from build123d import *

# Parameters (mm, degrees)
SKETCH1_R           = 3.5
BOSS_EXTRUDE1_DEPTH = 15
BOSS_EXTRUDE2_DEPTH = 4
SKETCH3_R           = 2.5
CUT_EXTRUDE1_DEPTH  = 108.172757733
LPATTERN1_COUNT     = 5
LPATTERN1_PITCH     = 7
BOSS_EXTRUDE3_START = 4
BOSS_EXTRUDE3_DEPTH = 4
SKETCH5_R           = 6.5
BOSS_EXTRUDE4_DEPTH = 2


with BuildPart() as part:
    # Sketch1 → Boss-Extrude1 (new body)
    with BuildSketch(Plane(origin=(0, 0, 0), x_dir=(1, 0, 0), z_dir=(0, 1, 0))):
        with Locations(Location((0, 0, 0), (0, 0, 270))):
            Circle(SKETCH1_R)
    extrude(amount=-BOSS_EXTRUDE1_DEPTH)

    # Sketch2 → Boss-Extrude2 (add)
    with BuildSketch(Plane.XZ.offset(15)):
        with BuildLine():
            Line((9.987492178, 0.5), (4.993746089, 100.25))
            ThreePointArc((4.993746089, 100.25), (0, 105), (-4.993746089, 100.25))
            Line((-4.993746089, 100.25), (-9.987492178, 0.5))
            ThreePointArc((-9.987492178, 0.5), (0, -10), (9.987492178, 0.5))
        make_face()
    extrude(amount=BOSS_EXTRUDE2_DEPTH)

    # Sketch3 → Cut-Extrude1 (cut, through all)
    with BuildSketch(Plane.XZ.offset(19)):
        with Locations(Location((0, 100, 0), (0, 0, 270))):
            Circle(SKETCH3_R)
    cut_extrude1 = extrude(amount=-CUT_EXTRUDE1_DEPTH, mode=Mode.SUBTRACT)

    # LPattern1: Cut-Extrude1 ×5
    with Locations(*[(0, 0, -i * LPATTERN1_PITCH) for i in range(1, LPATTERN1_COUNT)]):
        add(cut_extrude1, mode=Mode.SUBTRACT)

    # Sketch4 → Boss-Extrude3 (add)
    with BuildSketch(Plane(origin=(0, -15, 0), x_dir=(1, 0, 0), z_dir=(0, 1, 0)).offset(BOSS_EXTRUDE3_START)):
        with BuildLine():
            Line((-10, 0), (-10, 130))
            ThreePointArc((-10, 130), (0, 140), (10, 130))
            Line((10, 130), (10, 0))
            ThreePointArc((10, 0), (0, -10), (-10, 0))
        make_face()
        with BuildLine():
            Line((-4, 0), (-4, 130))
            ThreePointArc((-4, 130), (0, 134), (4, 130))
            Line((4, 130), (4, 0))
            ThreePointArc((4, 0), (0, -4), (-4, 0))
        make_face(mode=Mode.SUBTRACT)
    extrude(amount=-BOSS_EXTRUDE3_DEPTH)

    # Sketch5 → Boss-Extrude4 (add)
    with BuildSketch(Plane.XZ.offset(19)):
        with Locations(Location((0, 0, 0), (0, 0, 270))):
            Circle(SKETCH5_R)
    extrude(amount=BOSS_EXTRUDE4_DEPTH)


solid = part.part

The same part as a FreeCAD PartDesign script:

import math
import FreeCAD as App
import Part
import Sketcher

V = App.Vector

doc = App.newDocument("Part")
body = doc.addObject("PartDesign::Body", "Body")

# Sketch on XZ plane
sketch1 = body.newObject("Sketcher::SketchObject", "Sketch")
sketch1.AttachmentSupport = (doc.getObject("XZ_Plane"), [""])
sketch1.MapMode = "FlatFace"
sketch1.addGeometry(Part.Circle(V(0, 0, 0), V(0, 0, 1), 3.5), False)
sketch1.addConstraint([
    Sketcher.Constraint("Coincident", 0, 3, -1, 1),
    Sketcher.Constraint("Diameter", 0, 7.0),
])
pad1 = body.newObject("PartDesign::Pad", "Pad")
pad1.Profile = sketch1
pad1.Length = 15

# Sketch on XZ plane
sketch2 = body.newObject("Sketcher::SketchObject", "Sketch001")
sketch2.AttachmentSupport = (doc.getObject("XZ_Plane"), [""])
sketch2.MapMode = "FlatFace"
sketch2.AttachmentOffset = App.Placement(V(0, 0, 15), App.Rotation())
sketch2.addGeometry([
    Part.LineSegment(V(10, 0, 0), V(5, 100, 0)),
    Part.ArcOfCircle(Part.Circle(V(0, 100, 0), V(0, 0, 1), 5), math.radians(3), math.radians(177)),
    Part.LineSegment(V(-5, 100, 0), V(-10, 0, 0)),
    Part.ArcOfCircle(Part.Circle(V(0, 0, 0), V(0, 0, 1), 10), math.radians(177), math.radians(363)),
], False)
sketch2.addConstraint([
    Sketcher.Constraint("Tangent", 0, 2, 1, 1),
    Sketcher.Constraint("Tangent", 1, 2, 2, 1),
    Sketcher.Constraint("Tangent", 2, 2, 3, 1),
    Sketcher.Constraint("Tangent", 3, 2, 0, 1),
    Sketcher.Constraint("Coincident", 3, 3, -1, 1),
    Sketcher.Constraint("PointOnObject", 1, 3, -2),
    Sketcher.Constraint("Radius", 1, 5.0),
    Sketcher.Constraint("Radius", 3, 10.0),
    Sketcher.Constraint("DistanceY", -1, 1, 1, 3, 100.0),
])
pad2 = body.newObject("PartDesign::Pad", "Pad001")
pad2.Profile = sketch2
pad2.Length = 4

# Sketch on XZ plane
sketch3 = body.newObject("Sketcher::SketchObject", "Sketch002")
sketch3.AttachmentSupport = (doc.getObject("XZ_Plane"), [""])
sketch3.MapMode = "FlatFace"
sketch3.AttachmentOffset = App.Placement(V(0, 0, 19), App.Rotation())
sketch3.addGeometry(Part.Circle(V(0, 100, 0), V(0, 0, 1), 2.5), False)
sketch3.addConstraint([
    Sketcher.Constraint("PointOnObject", 0, 3, -2),
    Sketcher.Constraint("Diameter", 0, 5.0),
    Sketcher.Constraint("DistanceY", -1, 1, 0, 3, 100.0),
])
pocket1 = body.newObject("PartDesign::Pocket", "Pocket")
pocket1.Profile = sketch3
pocket1.Type = "ThroughAll"
doc.recompute()

linearpattern = body.newObject("PartDesign::LinearPattern", "LinearPattern")
linearpattern.Originals = [pocket1]
linearpattern.Direction = (doc.getObject("Z_Axis"), [""])
linearpattern.Mode = "offset"
linearpattern.Offset = 7
linearpattern.Occurrences = 5
linearpattern.Reversed = True
body.Tip = linearpattern

# Sketch on XZ plane
sketch4 = body.newObject("Sketcher::SketchObject", "Sketch003")
sketch4.AttachmentSupport = (doc.getObject("XZ_Plane"), [""])
sketch4.MapMode = "FlatFace"
sketch4.AttachmentOffset = App.Placement(V(0, 0, 11), App.Rotation())
sketch4.addGeometry([
    Part.LineSegment(V(-10, -130, 0), V(-10, 0, 0)),  # 0
    Part.ArcOfCircle(Part.Circle(V(0, 0, 0), V(0, 0, 1), 10), math.radians(0), math.radians(180)),  # 1
    Part.LineSegment(V(10, 0, 0), V(10, -130, 0)),  # 2
    Part.ArcOfCircle(Part.Circle(V(0, -130, 0), V(0, 0, 1), 10), math.radians(180), math.radians(360)),  # 3
    Part.LineSegment(V(-4, 0, 0), V(-4, -130, 0)),  # 4
    Part.ArcOfCircle(Part.Circle(V(0, -130, 0), V(0, 0, 1), 4), math.radians(180), math.radians(360)),  # 5
    Part.LineSegment(V(4, -130, 0), V(4, 0, 0)),  # 6
    Part.ArcOfCircle(Part.Circle(V(0, 0, 0), V(0, 0, 1), 4), math.radians(0), math.radians(180)),  # 7
], False)
sketch4.addConstraint([
    Sketcher.Constraint("Tangent", 0, 2, 1, 2),
    Sketcher.Constraint("Tangent", 1, 1, 2, 1),
    Sketcher.Constraint("Tangent", 2, 2, 3, 2),
    Sketcher.Constraint("Tangent", 3, 1, 0, 1),
    Sketcher.Constraint("Tangent", 4, 2, 5, 1),
    Sketcher.Constraint("Tangent", 5, 2, 6, 1),
    Sketcher.Constraint("Tangent", 6, 2, 7, 1),
    Sketcher.Constraint("Tangent", 7, 2, 4, 1),
    Sketcher.Constraint("Vertical", 0),
    Sketcher.Constraint("Vertical", 2),
    Sketcher.Constraint("Vertical", 4),
    Sketcher.Constraint("Vertical", 6),
    Sketcher.Constraint("Coincident", 1, 3, -1, 1),
    Sketcher.Constraint("Coincident", 7, 3, -1, 1),
    Sketcher.Constraint("Horizontal", 5, 3, 2, 2),
    Sketcher.Constraint("Radius", 1, 10.0),
    Sketcher.Constraint("Radius", 5, 4.0),
    Sketcher.Constraint("DistanceY", 0, 1, 0, 2, 130.0),
])
pad3 = body.newObject("PartDesign::Pad", "Pad002")
pad3.Profile = sketch4
pad3.Length = 4

# Sketch on XZ plane
sketch5 = body.newObject("Sketcher::SketchObject", "Sketch004")
sketch5.AttachmentSupport = (doc.getObject("XZ_Plane"), [""])
sketch5.MapMode = "FlatFace"
sketch5.AttachmentOffset = App.Placement(V(0, 0, 19), App.Rotation())
sketch5.addGeometry(Part.Circle(V(0, 0, 0), V(0, 0, 1), 6), False)
sketch5.addConstraint([
    Sketcher.Constraint("Coincident", 0, 3, -1, 1),
    Sketcher.Constraint("Diameter", 0, 13.0),
])
pad4 = body.newObject("PartDesign::Pad", "Pad003")
pad4.Profile = sketch5
pad4.Length = 2

doc.recompute()
